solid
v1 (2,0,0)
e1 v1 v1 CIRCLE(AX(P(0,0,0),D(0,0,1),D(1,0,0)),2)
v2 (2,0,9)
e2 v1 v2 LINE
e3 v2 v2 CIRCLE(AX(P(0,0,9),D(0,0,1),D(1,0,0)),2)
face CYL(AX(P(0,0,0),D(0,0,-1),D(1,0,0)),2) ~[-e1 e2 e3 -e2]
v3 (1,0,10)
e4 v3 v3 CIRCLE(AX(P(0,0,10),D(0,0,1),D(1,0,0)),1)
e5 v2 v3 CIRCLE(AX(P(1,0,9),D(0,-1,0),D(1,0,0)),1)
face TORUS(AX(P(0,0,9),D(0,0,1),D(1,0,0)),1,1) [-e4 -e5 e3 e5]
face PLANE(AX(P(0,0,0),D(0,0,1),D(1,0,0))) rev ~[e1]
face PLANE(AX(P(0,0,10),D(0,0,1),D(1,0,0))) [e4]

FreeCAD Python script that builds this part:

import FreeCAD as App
import Part
import Sketcher
from FreeCAD import Vector


def edges_at(feature, points):
    """Names of the edges that pass closest to the given points."""
    edges = feature.Shape.Edges
    near = lambda p: min(range(len(edges)), key=lambda i: edges[i].distToShape(Part.Vertex(*p))[0])
    return sorted({f"Edge{near(p) + 1}" for p in points})

doc = App.newDocument("Part")
body = doc.addObject("PartDesign::Body", "Body")

sketch1 = body.newObject("Sketcher::SketchObject", "Sketch")
sketch1.AttachmentSupport = (doc.getObject("XY_Plane"), [""])
sketch1.MapMode = "FlatFace"
sketch1.addGeometry(Part.Circle(Vector(0, 0, 0), Vector(0, 0, 1), 2), False)
sketch1.addConstraint(Sketcher.Constraint("Coincident", 0, 3, -1, 1))
sketch1.addConstraint(Sketcher.Constraint("Diameter", 0, 4.0))
pad1 = body.newObject("PartDesign::Pad", "Pad")
pad1.Profile = sketch1
pad1.Length = 10
doc.recompute()

fillet = body.newObject("PartDesign::Fillet", "Fillet")
fillet.Base = (pad1, edges_at(pad1, [(-2, 0, 10)]))
fillet.Radius = 1

doc.recompute()
